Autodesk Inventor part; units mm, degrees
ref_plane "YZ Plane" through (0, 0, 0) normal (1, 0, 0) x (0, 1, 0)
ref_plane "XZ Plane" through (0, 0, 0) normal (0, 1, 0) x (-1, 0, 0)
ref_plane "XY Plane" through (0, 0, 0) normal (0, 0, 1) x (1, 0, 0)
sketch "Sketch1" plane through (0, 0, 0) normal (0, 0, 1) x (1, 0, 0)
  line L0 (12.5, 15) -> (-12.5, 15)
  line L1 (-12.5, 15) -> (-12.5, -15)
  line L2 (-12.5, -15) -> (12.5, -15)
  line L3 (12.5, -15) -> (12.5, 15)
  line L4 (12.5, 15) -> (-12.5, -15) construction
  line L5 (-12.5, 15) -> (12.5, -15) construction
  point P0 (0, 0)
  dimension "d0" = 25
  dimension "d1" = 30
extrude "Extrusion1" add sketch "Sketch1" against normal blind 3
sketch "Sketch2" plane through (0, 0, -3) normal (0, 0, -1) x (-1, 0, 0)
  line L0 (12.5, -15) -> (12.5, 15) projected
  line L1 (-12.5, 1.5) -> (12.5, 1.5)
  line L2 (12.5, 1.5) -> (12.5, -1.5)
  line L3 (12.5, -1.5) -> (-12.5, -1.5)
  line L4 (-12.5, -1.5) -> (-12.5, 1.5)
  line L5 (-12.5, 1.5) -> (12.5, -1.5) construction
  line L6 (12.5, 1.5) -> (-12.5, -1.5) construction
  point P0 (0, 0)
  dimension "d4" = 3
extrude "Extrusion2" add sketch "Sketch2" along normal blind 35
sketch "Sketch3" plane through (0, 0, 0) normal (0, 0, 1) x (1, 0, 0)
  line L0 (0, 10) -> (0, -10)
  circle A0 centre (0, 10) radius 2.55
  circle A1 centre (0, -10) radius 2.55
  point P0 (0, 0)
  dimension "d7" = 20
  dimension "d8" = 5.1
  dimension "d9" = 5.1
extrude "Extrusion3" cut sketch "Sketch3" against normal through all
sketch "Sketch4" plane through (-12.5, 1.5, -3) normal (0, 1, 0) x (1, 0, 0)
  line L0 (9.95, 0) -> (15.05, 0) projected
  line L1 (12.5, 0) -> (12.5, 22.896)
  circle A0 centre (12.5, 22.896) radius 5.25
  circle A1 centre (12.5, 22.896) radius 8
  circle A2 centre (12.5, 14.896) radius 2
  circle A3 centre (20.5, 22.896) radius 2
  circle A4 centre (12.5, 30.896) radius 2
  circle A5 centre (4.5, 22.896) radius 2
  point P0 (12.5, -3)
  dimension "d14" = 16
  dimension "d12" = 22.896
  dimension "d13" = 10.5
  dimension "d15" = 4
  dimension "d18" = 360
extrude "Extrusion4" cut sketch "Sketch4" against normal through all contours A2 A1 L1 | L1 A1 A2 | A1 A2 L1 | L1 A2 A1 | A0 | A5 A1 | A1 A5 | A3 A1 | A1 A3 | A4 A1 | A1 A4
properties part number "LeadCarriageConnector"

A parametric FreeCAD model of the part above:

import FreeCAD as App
import Part
import Sketcher
Q = App.Units.Quantity

doc = App.newDocument("Part")
body = doc.addObject("PartDesign::Body", "Body")

# Sketch on XY plane
sketch1 = body.newObject("Sketcher::SketchObject", "Sketch")
sketch1.AttachmentSupport = (doc.getObject("XY_Plane"), [""])
sketch1.MapMode = "FlatFace"
sketch1.addGeometry(Part.LineSegment(App.Vector(12, -15, 0), App.Vector(12, 15, 0)), False)
sketch1.addGeometry(Part.LineSegment(App.Vector(12, 15, 0), App.Vector(-12, 15, 0)), False)
sketch1.addGeometry(Part.LineSegment(App.Vector(-12, 15, 0), App.Vector(-12, -15, 0)), False)
sketch1.addGeometry(Part.LineSegment(App.Vector(-12, -15, 0), App.Vector(12, -15, 0)), False)
sketch1.addConstraint(Sketcher.Constraint("Coincident", 0, 2, 1, 1))
sketch1.addConstraint(Sketcher.Constraint("Coincident", 1, 2, 2, 1))
sketch1.addConstraint(Sketcher.Constraint("Coincident", 2, 2, 3, 1))
sketch1.addConstraint(Sketcher.Constraint("Coincident", 3, 2, 0, 1))
sketch1.addConstraint(Sketcher.Constraint("Vertical", 0))
sketch1.addConstraint(Sketcher.Constraint("Horizontal", 1))
sketch1.addConstraint(Sketcher.Constraint("Vertical", 2))
sketch1.addConstraint(Sketcher.Constraint("Horizontal", 3))
sketch1.addConstraint(Sketcher.Constraint("Symmetric", 0, 2, 2, 2, -1, 1))
sketch1.addConstraint(Sketcher.Constraint("DistanceX", 1, 2, 1, 1, Q("25 mm")))
sketch1.addConstraint(Sketcher.Constraint("DistanceY", 0, 1, 0, 2, Q("30 mm")))
pad1 = body.newObject("PartDesign::Pad", "Pad")
pad1.Profile = sketch1
pad1.Length = 3
pad1.Reversed = True

# Sketch on XY plane
sketch2 = body.newObject("Sketcher::SketchObject", "Sketch001")
sketch2.AttachmentSupport = (doc.getObject("XY_Plane"), [""])
sketch2.MapMode = "FlatFace"
sketch2.AttachmentOffset = App.Placement(App.Vector(0, 0, -3), App.Rotation())
sketch2.addGeometry(Part.LineSegment(App.Vector(12.5, -1.5, 0), App.Vector(-12.5, -1.5, 0)), False)
sketch2.addGeometry(Part.LineSegment(App.Vector(-12.5, -1.5, 0), App.Vector(-12.5, 1.5, 0)), False)
sketch2.addGeometry(Part.LineSegment(App.Vector(-12.5, 1.5, 0), App.Vector(12.5, 1.5, 0)), False)
sketch2.addGeometry(Part.LineSegment(App.Vector(12.5, 1.5, 0), App.Vector(12.5, -1.5, 0)), False)
sketch2.addConstraint(Sketcher.Constraint("Coincident", 0, 2, 1, 1))
sketch2.addConstraint(Sketcher.Constraint("Coincident", 1, 2, 2, 1))
sketch2.addConstraint(Sketcher.Constraint("Coincident", 2, 2, 3, 1))
sketch2.addConstraint(Sketcher.Constraint("Coincident", 3, 2, 0, 1))
sketch2.addConstraint(Sketcher.Constraint("Horizontal", 0))
sketch2.addConstraint(Sketcher.Constraint("Vertical", 1))
sketch2.addConstraint(Sketcher.Constraint("Horizontal", 2))
sketch2.addConstraint(Sketcher.Constraint("Vertical", 3))
sketch2.addConstraint(Sketcher.Constraint("Symmetric", 0, 2, 2, 2, -1, 1))
sketch2.addConstraint(Sketcher.Constraint("DistanceY", 1, 1, 1, 2, Q("3 mm")))
sketch2.addConstraint(Sketcher.Constraint("DistanceX", 0, 2, 0, 1, Q("25 mm")))
pad2 = body.newObject("PartDesign::Pad", "Pad001")
pad2.Profile = sketch2
pad2.Length = 35
pad2.Reversed = True

# Sketch on XY plane
sketch3 = body.newObject("Sketcher::SketchObject", "Sketch002")
sketch3.AttachmentSupport = (doc.getObject("XY_Plane"), [""])
sketch3.MapMode = "FlatFace"
sketch3.addGeometry(Part.Circle(App.Vector(0, -10, 0), App.Vector(0, 0, 1), 2.5), False)
sketch3.addGeometry(Part.Circle(App.Vector(0, 10, 0), App.Vector(0, 0, 1), 2.5), False)
sketch3.addConstraint(Sketcher.Constraint("Equal", 0, 1))
sketch3.addConstraint(Sketcher.Constraint("Symmetric", 0, 3, 1, 3, -1, 1))
sketch3.addConstraint(Sketcher.Constraint("PointOnObject", 0, 3, -2))
sketch3.addConstraint(Sketcher.Constraint("Diameter", 0, Q("5.1 mm")))
sketch3.addConstraint(Sketcher.Constraint("DistanceY", 0, 3, 1, 3, Q("20 mm")))
pocket1 = body.newObject("PartDesign::Pocket", "Pocket")
pocket1.Profile = sketch3
pocket1.Type = "ThroughAll"

# Sketch on XZ plane
sketch4 = body.newObject("Sketcher::SketchObject", "Sketch003")
sketch4.AttachmentSupport = (doc.getObject("XZ_Plane"), [""])
sketch4.MapMode = "FlatFace"
sketch4.AttachmentOffset = App.Placement(App.Vector(0, 0, -1.5), App.Rotation())
sketch4.addGeometry(Part.Circle(App.Vector(0, -17.9, 0), App.Vector(0, 0, 1), 2), False)
sketch4.addGeometry(Part.Circle(App.Vector(0, -25.9, 0), App.Vector(0, 0, 1), 5.2), False)
sketch4.addGeometry(Part.Circle(App.Vector(-8, -25.9, 0), App.Vector(0, 0, 1), 2), False)
sketch4.addGeometry(Part.Circle(App.Vector(8, -25.9, 0), App.Vector(0, 0, 1), 2), False)
sketch4.addGeometry(Part.Circle(App.Vector(0, -33.9, 0), App.Vector(0, 0, 1), 2), False)
sketch4.addConstraint(Sketcher.Constraint("Equal", 0, 2))
sketch4.addConstraint(Sketcher.Constraint("Equal", 2, 3))
sketch4.addConstraint(Sketcher.Constraint("Equal", 3, 4))
sketch4.addConstraint(Sketcher.Constraint("Symmetric", 2, 3, 3, 3, -2))
sketch4.addConstraint(Sketcher.Constraint("PointOnObject", 0, 3, -2))
sketch4.addConstraint(Sketcher.Constraint("PointOnObject", 1, 3, -2))
sketch4.addConstraint(Sketcher.Constraint("PointOnObject", 4, 3, -2))
sketch4.addConstraint(Sketcher.Constraint("Horizontal", 1, 3, 2, 3))
sketch4.addConstraint(Sketcher.Constraint("Diameter", 0, Q("4 mm")))
sketch4.addConstraint(Sketcher.Constraint("Diameter", 1, Q("10.5 mm")))
sketch4.addConstraint(Sketcher.Constraint("DistanceX", 2, 3, 3, 3, Q("16 mm")))
sketch4.addConstraint(Sketcher.Constraint("DistanceY", 4, 3, 0, 3, Q("16 mm")))
sketch4.addConstraint(Sketcher.Constraint("DistanceY", 1, 3, 0, 3, Q("8 mm")))
sketch4.addConstraint(Sketcher.Constraint("DistanceY", 0, 3, -1, 1, Q("17.896 mm")))
pocket2 = body.newObject("PartDesign::Pocket", "Pocket001")
pocket2.Profile = sketch4
pocket2.Type = "ThroughAll"
pocket2.Reversed = True

doc.recompute()
